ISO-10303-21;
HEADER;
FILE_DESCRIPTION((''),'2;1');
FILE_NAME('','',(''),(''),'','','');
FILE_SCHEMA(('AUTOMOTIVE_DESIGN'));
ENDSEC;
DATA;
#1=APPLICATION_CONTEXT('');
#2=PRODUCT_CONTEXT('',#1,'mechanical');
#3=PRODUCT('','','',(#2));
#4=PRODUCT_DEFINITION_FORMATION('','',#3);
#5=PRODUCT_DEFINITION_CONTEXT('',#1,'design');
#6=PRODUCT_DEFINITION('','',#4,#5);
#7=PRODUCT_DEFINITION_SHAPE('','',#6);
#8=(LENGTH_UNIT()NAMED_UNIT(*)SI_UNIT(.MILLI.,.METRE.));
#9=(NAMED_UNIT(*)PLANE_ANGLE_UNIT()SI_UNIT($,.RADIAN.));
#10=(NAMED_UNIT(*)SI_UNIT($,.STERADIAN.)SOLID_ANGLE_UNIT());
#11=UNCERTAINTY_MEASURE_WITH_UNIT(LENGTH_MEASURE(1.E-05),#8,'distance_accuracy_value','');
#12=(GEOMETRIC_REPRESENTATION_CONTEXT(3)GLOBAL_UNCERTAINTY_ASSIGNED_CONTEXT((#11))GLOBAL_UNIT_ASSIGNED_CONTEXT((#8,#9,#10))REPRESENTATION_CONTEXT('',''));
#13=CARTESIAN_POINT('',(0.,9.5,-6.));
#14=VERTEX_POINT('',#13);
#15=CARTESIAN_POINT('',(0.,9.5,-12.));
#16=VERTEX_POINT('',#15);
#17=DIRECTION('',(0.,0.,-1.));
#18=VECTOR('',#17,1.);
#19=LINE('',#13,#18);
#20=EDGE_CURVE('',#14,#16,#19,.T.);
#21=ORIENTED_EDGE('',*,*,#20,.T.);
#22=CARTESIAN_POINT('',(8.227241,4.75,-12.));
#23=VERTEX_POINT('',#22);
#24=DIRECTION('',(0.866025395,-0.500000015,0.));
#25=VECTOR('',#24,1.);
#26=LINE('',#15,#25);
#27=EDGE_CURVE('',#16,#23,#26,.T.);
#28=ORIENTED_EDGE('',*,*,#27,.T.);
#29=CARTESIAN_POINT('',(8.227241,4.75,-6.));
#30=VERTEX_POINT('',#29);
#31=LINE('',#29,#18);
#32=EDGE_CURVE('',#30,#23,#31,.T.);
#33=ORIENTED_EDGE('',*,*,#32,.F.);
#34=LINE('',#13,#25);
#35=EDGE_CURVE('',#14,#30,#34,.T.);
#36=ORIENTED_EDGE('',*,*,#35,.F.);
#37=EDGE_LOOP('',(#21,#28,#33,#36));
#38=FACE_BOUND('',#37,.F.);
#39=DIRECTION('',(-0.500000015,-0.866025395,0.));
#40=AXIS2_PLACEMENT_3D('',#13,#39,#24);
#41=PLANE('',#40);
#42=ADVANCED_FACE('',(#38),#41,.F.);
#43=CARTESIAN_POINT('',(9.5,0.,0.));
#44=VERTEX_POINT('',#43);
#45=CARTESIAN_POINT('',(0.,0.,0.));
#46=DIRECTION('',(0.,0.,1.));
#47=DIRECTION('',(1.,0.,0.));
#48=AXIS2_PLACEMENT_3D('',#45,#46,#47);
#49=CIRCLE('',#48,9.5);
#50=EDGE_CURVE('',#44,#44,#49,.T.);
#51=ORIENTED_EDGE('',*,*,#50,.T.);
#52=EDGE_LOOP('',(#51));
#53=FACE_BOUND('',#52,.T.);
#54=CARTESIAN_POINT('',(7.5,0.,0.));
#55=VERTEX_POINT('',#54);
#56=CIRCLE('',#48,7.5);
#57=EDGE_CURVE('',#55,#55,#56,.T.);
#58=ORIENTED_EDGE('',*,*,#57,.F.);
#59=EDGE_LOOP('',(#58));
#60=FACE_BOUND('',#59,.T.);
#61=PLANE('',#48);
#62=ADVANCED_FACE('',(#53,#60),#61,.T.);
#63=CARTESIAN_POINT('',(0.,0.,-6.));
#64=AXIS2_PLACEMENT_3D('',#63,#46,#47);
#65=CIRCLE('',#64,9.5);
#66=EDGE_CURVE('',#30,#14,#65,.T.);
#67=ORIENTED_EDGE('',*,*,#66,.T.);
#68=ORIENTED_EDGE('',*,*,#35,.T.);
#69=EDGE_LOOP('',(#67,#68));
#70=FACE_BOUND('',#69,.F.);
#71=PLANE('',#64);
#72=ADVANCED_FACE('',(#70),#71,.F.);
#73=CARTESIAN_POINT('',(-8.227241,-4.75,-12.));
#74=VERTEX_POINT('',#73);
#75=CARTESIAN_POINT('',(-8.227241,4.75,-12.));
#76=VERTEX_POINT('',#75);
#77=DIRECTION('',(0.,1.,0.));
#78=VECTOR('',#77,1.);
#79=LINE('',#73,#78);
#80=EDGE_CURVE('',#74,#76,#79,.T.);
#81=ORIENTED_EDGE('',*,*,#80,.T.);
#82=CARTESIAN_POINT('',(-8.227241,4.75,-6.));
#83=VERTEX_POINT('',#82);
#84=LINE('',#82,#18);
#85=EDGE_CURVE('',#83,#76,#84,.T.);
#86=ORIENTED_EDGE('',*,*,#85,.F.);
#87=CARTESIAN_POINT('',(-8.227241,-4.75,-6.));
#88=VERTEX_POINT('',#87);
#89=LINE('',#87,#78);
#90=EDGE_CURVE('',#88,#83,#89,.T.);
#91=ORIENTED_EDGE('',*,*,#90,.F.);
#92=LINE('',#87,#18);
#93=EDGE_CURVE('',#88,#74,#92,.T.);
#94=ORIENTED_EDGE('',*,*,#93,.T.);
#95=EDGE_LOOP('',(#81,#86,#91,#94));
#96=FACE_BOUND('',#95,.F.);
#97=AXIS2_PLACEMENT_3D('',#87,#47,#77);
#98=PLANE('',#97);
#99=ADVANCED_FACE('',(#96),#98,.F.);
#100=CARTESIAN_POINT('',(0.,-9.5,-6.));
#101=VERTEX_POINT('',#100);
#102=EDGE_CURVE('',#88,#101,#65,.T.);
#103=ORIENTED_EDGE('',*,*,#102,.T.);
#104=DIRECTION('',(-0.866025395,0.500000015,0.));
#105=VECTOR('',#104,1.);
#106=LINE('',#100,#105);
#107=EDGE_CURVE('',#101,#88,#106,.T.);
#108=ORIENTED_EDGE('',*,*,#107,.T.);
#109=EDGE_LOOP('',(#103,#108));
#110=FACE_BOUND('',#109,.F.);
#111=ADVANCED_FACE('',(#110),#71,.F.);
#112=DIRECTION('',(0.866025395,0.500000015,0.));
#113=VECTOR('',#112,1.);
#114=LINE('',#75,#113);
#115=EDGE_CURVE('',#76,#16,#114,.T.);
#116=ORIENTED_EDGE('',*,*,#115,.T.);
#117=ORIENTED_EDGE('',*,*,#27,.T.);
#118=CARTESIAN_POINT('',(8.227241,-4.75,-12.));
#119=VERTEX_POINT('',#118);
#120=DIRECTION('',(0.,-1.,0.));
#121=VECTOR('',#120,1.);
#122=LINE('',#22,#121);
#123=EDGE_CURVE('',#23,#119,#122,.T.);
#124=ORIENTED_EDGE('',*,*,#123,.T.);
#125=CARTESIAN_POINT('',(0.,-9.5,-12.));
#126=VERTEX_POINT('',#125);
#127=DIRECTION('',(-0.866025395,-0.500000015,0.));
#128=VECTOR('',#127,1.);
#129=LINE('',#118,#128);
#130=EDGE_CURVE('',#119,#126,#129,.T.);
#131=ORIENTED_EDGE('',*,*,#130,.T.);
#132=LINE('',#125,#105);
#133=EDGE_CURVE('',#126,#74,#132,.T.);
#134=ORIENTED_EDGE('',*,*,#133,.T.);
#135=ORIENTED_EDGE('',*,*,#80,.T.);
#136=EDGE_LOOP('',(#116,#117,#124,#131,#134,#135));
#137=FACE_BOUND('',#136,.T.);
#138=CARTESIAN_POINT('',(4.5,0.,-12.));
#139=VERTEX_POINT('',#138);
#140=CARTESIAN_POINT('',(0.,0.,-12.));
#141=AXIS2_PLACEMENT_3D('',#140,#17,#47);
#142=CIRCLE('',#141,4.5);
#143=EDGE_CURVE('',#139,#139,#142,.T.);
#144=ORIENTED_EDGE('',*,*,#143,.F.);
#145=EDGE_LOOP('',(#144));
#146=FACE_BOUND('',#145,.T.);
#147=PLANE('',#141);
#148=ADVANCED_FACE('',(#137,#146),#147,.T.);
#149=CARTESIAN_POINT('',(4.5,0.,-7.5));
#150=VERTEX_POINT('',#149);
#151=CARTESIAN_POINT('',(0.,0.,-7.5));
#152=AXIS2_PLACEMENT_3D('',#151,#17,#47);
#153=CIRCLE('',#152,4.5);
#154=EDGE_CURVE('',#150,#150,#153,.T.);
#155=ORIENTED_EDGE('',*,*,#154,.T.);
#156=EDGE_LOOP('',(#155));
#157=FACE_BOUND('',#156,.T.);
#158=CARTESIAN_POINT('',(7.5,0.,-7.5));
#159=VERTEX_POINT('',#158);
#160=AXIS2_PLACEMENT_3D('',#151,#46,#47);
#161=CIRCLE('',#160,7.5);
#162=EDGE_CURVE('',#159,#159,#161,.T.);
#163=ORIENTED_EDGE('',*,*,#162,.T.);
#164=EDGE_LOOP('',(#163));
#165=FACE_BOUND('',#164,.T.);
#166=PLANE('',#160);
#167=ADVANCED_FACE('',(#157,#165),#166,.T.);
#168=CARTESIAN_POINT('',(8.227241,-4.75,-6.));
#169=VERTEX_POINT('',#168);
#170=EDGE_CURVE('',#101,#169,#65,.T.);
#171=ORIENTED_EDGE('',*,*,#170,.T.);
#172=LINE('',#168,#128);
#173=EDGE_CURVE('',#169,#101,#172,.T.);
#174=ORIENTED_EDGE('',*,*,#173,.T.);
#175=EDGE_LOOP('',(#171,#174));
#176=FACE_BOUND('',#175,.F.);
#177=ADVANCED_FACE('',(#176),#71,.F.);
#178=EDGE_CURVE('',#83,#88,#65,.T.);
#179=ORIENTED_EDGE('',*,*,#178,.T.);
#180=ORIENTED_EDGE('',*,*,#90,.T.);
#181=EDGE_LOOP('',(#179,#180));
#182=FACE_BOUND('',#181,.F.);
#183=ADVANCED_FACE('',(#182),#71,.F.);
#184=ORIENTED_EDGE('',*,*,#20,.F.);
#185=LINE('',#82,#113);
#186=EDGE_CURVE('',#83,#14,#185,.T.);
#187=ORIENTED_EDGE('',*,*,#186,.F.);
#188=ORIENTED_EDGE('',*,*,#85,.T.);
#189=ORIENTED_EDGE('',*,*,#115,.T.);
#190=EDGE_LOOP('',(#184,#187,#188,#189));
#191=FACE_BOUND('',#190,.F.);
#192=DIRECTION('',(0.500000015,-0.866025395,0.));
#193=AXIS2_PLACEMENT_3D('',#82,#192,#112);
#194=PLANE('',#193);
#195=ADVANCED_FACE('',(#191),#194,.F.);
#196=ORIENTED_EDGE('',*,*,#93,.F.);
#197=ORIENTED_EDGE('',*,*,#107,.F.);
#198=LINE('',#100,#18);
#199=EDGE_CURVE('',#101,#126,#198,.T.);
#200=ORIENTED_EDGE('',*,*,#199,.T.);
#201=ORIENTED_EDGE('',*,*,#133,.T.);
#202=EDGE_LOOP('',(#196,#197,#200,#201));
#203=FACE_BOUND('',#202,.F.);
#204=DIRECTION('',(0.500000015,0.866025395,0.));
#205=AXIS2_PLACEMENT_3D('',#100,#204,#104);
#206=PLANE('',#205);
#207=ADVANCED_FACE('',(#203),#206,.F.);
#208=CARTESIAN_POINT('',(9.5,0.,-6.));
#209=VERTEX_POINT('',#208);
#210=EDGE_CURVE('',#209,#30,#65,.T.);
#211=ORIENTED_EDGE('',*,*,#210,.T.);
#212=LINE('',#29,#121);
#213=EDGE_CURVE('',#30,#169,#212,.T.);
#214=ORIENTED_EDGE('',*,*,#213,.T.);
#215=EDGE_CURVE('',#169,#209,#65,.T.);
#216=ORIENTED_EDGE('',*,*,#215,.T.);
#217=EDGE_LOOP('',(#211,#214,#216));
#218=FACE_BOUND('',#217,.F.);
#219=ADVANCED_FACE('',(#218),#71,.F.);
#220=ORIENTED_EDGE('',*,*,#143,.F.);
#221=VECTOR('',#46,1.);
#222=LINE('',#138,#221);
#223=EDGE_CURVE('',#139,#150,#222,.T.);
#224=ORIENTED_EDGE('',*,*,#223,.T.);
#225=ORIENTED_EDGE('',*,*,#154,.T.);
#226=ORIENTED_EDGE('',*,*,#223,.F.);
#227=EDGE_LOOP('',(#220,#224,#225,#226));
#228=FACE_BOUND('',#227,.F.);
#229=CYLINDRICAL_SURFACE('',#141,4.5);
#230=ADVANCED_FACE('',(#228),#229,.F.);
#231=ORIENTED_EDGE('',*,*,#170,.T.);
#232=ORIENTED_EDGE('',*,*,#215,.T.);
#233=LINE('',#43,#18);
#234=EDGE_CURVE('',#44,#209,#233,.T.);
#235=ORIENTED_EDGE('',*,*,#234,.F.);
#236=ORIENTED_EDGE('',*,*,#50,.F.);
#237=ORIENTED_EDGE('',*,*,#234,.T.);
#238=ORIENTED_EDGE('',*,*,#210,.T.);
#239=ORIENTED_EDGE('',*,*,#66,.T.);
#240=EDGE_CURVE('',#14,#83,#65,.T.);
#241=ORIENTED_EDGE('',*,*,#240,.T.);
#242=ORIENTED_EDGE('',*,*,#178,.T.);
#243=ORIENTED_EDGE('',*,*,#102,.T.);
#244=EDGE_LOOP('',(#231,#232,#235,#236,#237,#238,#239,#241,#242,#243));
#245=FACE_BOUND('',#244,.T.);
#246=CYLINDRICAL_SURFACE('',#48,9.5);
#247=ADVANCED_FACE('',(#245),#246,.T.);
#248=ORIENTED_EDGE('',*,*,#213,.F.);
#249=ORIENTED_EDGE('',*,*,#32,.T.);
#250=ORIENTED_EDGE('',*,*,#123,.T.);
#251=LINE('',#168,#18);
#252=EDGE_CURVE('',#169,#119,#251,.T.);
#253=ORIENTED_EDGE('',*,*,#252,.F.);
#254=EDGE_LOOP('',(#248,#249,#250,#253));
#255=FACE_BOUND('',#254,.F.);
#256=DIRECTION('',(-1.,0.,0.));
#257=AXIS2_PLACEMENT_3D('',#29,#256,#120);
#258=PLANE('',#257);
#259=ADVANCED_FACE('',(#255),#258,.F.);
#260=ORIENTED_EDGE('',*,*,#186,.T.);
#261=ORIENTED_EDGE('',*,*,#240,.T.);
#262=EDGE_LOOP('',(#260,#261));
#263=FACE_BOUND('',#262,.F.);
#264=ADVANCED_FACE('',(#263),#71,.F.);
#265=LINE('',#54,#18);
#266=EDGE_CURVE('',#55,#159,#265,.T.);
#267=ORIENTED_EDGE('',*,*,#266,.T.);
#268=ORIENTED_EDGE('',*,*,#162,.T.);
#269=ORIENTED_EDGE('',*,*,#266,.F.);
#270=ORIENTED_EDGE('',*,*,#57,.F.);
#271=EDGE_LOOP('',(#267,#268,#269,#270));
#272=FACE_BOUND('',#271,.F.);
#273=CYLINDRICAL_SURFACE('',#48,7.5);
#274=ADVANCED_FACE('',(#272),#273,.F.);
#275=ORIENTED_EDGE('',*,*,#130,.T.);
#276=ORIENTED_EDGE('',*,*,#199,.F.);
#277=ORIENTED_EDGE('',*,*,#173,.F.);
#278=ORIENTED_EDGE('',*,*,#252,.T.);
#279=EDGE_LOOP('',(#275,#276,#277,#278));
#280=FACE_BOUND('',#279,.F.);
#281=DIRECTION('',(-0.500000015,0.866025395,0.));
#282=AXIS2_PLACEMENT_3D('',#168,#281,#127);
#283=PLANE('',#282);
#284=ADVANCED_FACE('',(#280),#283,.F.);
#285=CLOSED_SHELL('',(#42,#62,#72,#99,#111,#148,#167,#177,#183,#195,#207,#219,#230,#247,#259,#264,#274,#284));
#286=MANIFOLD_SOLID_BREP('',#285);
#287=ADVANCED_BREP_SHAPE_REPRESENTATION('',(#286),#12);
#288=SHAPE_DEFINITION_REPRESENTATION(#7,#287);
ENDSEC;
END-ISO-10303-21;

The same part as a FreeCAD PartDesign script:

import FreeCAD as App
import Part
import Sketcher

V = App.Vector
Q = App.Units.Quantity

doc = App.newDocument("Part")
body = doc.addObject("PartDesign::Body", "Body")

sketch1 = doc.addObject("Sketcher::SketchObject", "Sketch")
body.addObject(sketch1)
sketch1.AttachmentSupport = (doc.XY_Plane, [""])
sketch1.MapMode = "FlatFace"
sketch1.addGeometry(Part.Circle(V(0, 0, 0), V(0, 0, 1), 9.5), False)
sketch1.addConstraint(Sketcher.Constraint("Coincident", 0, 3, -1, 1))
sketch1.addConstraint(Sketcher.Constraint("Diameter", 0, Q("19 mm")))
pad1 = doc.addObject("PartDesign::Pad", "Pad")
body.addObject(pad1)
pad1.Profile = sketch1
pad1.Length = 6
pad1.Reversed = True

sketch2 = doc.addObject("Sketcher::SketchObject", "Sketch001")
body.addObject(sketch2)
sketch2.AttachmentSupport = (doc.XY_Plane, [""])
sketch2.MapMode = "FlatFace"
sketch2.AttachmentOffset = App.Placement(V(0, 0, -6), App.Rotation())
sketch2.addGeometry(Part.LineSegment(V(8.227241, 4.75, 0), V(8.227241, -4.75, 0)), False)
sketch2.addGeometry(Part.LineSegment(V(8.227241, -4.75, 0), V(0, -9.5, 0)), False)
sketch2.addGeometry(Part.LineSegment(V(0, -9.5, 0), V(-8.227241, -4.75, 0)), False)
sketch2.addGeometry(Part.LineSegment(V(-8.227241, -4.75, 0), V(-8.227241, 4.75, 0)), False)
sketch2.addGeometry(Part.LineSegment(V(-8.227241, 4.75, 0), V(0, 9.5, 0)), False)
sketch2.addGeometry(Part.LineSegment(V(0, 9.5, 0), V(8.227241, 4.75, 0)), False)
sketch2.addConstraint(Sketcher.Constraint("Coincident", 0, 2, 1, 1))
sketch2.addConstraint(Sketcher.Constraint("Coincident", 1, 2, 2, 1))
sketch2.addConstraint(Sketcher.Constraint("Coincident", 2, 2, 3, 1))
sketch2.addConstraint(Sketcher.Constraint("Coincident", 3, 2, 4, 1))
sketch2.addConstraint(Sketcher.Constraint("Coincident", 4, 2, 5, 1))
sketch2.addConstraint(Sketcher.Constraint("Coincident", 5, 2, 0, 1))
sketch2.addConstraint(Sketcher.Constraint("Vertical", 0))
sketch2.addConstraint(Sketcher.Constraint("Vertical", 3))
sketch2.addConstraint(Sketcher.Constraint("Symmetric", 0, 2, 3, 2, -1, 1))
sketch2.addConstraint(Sketcher.Constraint("Symmetric", 1, 2, 4, 2, -1, 1))
sketch2.addConstraint(Sketcher.Constraint("PointOnObject", 1, 2, -2))
sketch2.addConstraint(Sketcher.Constraint("Parallel", 2, 5))
sketch2.addConstraint(Sketcher.Constraint("Horizontal", 0, 2, 2, 2))
sketch2.addConstraint(Sketcher.Constraint("Angle", 1, Q("-149.999999 deg")))
sketch2.addConstraint(Sketcher.Constraint("DistanceY", 0, 2, 0, 1, Q("9.5 mm")))
sketch2.addConstraint(Sketcher.Constraint("DistanceY", 1, 2, 4, 2, Q("19 mm")))
pad2 = doc.addObject("PartDesign::Pad", "Pad001")
body.addObject(pad2)
pad2.Profile = sketch2
pad2.Length = 6
pad2.Reversed = True

sketch3 = doc.addObject("Sketcher::SketchObject", "Sketch002")
body.addObject(sketch3)
sketch3.AttachmentSupport = (doc.XY_Plane, [""])
sketch3.MapMode = "FlatFace"
sketch3.AttachmentOffset = App.Placement(V(0, 0, -12), App.Rotation())
sketch3.addGeometry(Part.Circle(V(0, 0, 0), V(0, 0, 1), 4.5), False)
sketch3.addConstraint(Sketcher.Constraint("Coincident", 0, 3, -1, 1))
sketch3.addConstraint(Sketcher.Constraint("Diameter", 0, Q("9 mm")))
pocket1 = doc.addObject("PartDesign::Pocket", "Pocket")
body.addObject(pocket1)
pocket1.Profile = sketch3
pocket1.Length = 8
pocket1.Reversed = True

sketch4 = doc.addObject("Sketcher::SketchObject", "Sketch003")
body.addObject(sketch4)
sketch4.AttachmentSupport = (doc.XY_Plane, [""])
sketch4.MapMode = "FlatFace"
sketch4.addGeometry(Part.Circle(V(0, 0, 0), V(0, 0, 1), 7.5), False)
sketch4.addConstraint(Sketcher.Constraint("Coincident", 0, 3, -1, 1))
sketch4.addConstraint(Sketcher.Constraint("Diameter", 0, Q("15 mm")))
pocket2 = doc.addObject("PartDesign::Pocket", "Pocket001")
body.addObject(pocket2)
pocket2.Profile = sketch4
pocket2.Length = 7.5

doc.recompute()
